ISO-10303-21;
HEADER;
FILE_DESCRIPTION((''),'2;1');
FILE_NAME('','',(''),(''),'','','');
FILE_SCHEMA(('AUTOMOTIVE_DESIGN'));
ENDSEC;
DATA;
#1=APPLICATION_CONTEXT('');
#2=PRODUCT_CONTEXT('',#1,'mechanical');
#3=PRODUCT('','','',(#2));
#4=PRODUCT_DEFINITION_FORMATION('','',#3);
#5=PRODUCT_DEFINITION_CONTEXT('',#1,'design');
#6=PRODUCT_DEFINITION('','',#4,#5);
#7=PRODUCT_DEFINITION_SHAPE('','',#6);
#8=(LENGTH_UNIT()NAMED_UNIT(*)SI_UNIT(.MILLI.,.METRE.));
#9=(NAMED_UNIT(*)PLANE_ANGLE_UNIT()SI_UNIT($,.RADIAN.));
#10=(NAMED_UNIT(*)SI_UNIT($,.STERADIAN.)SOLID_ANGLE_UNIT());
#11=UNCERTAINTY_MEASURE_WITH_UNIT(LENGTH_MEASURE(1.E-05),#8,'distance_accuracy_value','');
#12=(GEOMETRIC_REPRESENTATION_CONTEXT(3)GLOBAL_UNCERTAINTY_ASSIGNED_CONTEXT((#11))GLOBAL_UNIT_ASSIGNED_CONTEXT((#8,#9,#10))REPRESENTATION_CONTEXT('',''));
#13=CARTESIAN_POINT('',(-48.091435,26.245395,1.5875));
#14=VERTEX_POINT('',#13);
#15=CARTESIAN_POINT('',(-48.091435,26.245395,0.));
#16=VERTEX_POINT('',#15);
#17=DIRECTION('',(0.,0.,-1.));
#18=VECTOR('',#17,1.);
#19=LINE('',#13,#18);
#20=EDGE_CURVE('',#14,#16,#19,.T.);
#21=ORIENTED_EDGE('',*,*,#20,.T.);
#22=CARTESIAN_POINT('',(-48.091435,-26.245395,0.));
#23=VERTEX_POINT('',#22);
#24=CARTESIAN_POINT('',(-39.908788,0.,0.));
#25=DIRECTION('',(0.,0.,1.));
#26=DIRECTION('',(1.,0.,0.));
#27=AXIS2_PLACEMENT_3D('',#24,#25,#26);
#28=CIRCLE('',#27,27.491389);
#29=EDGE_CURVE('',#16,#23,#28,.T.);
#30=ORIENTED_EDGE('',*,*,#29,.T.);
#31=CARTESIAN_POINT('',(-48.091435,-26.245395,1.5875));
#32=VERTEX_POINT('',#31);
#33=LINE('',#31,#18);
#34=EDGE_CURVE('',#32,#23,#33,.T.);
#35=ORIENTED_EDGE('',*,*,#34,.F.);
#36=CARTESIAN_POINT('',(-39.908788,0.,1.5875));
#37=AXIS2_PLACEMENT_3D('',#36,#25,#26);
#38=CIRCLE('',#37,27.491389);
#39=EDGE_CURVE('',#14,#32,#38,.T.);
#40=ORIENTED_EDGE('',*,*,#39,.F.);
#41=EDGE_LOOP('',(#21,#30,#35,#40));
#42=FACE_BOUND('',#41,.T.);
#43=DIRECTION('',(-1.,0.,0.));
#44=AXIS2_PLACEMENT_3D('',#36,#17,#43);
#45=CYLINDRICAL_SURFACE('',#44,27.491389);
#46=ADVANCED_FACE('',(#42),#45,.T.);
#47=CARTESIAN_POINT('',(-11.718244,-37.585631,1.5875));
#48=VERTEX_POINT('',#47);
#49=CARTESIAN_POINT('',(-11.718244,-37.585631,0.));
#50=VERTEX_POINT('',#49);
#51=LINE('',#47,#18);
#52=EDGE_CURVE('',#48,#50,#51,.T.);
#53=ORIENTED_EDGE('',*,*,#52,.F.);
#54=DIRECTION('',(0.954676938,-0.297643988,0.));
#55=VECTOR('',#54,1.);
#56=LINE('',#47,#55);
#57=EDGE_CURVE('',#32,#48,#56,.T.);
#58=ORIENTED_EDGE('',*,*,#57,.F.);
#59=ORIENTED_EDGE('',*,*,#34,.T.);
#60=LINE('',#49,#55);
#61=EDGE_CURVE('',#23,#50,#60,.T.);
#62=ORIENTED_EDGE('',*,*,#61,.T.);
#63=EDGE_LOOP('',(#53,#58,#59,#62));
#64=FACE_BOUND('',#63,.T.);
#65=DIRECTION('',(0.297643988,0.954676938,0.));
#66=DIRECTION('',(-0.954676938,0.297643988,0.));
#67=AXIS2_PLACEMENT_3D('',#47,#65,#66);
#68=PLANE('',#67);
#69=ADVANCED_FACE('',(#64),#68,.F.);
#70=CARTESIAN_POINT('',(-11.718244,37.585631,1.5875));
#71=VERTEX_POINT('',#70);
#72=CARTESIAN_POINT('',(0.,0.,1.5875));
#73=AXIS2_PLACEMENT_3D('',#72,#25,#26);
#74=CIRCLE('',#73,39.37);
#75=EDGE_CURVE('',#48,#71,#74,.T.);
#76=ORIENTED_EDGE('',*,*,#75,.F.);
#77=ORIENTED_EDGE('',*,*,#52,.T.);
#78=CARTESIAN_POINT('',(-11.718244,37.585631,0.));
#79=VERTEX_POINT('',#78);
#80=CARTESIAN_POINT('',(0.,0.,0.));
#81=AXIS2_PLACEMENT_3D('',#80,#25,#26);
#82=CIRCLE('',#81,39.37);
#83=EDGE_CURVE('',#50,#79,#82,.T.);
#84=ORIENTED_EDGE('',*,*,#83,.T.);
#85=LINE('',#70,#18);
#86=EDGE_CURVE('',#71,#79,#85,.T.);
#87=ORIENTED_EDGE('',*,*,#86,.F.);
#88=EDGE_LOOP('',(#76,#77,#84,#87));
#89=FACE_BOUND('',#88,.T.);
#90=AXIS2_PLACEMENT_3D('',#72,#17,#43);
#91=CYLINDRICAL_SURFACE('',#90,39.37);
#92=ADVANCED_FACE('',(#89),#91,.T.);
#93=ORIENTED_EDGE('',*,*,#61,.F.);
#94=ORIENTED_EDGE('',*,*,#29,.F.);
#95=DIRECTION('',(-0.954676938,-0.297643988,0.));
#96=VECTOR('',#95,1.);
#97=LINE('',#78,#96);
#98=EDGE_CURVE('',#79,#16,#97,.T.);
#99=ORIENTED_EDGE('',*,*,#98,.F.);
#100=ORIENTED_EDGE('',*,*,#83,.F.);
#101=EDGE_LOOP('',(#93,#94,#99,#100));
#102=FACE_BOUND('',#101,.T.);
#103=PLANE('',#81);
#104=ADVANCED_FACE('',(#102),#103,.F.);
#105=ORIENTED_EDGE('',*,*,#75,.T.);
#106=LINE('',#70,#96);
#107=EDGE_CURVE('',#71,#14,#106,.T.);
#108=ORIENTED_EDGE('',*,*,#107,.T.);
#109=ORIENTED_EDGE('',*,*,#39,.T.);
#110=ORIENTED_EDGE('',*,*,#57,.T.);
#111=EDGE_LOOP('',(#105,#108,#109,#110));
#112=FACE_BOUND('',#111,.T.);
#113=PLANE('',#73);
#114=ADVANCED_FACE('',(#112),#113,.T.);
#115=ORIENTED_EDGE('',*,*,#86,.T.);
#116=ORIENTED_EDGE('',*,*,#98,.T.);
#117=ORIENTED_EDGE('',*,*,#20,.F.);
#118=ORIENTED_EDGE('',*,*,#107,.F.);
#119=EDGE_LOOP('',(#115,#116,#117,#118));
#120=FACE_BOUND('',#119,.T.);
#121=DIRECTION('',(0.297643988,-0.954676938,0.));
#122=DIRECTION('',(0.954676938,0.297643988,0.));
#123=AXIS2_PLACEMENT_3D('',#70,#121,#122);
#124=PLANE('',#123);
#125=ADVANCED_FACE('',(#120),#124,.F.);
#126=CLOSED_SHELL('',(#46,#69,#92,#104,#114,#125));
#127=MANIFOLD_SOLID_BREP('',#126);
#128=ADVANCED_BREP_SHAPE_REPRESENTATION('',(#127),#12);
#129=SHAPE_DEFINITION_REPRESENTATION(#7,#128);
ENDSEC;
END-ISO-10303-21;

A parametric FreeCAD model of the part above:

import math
import FreeCAD as App
import Part
import Sketcher

V = App.Vector
Q = App.Units.Quantity

doc = App.newDocument("Part")
body = doc.addObject("PartDesign::Body", "Body")

# Sketch on XY plane
sketch1 = body.newObject("Sketcher::SketchObject", "Sketch")
sketch1.AttachmentSupport = (doc.getObject("XY_Plane"), [""])
sketch1.MapMode = "FlatFace"
sketch1.addGeometry([
    Part.LineSegment(V(-48.091435, -26.245395, 0), V(-11.718244, -37.585631, 0)),
    Part.ArcOfCircle(Part.Circle(V(0, 0, 0), V(0, 0, 1), 39.37), math.radians(-107.31615), math.radians(107.31615)),
    Part.LineSegment(V(-11.718244, 37.585631, 0), V(-48.091435, 26.245395, 0)),
    Part.ArcOfCircle(Part.Circle(V(-39.908788, 0, 0), V(0, 0, 1), 27.491389), math.radians(107.31615), math.radians(252.68385)),
], False)
sketch1.addConstraint([
    Sketcher.Constraint("Tangent", 0, 2, 1, 1),
    Sketcher.Constraint("Tangent", 1, 2, 2, 1),
    Sketcher.Constraint("Tangent", 2, 2, 3, 1),
    Sketcher.Constraint("Tangent", 3, 2, 0, 1),
    Sketcher.Constraint("Coincident", 1, 3, -1, 1),
    Sketcher.Constraint("PointOnObject", 3, 3, -1),
    Sketcher.Constraint("Radius", 1, Q("1.55 in")),
    Sketcher.Constraint("Distance", 0, Q("1.5 in")),
    Sketcher.Constraint("Radius", 3, 27.491389),
])
pad1 = body.newObject("PartDesign::Pad", "Pad")
pad1.Profile = sketch1
pad1.Length = Q("0.0625 in")

doc.recompute()
